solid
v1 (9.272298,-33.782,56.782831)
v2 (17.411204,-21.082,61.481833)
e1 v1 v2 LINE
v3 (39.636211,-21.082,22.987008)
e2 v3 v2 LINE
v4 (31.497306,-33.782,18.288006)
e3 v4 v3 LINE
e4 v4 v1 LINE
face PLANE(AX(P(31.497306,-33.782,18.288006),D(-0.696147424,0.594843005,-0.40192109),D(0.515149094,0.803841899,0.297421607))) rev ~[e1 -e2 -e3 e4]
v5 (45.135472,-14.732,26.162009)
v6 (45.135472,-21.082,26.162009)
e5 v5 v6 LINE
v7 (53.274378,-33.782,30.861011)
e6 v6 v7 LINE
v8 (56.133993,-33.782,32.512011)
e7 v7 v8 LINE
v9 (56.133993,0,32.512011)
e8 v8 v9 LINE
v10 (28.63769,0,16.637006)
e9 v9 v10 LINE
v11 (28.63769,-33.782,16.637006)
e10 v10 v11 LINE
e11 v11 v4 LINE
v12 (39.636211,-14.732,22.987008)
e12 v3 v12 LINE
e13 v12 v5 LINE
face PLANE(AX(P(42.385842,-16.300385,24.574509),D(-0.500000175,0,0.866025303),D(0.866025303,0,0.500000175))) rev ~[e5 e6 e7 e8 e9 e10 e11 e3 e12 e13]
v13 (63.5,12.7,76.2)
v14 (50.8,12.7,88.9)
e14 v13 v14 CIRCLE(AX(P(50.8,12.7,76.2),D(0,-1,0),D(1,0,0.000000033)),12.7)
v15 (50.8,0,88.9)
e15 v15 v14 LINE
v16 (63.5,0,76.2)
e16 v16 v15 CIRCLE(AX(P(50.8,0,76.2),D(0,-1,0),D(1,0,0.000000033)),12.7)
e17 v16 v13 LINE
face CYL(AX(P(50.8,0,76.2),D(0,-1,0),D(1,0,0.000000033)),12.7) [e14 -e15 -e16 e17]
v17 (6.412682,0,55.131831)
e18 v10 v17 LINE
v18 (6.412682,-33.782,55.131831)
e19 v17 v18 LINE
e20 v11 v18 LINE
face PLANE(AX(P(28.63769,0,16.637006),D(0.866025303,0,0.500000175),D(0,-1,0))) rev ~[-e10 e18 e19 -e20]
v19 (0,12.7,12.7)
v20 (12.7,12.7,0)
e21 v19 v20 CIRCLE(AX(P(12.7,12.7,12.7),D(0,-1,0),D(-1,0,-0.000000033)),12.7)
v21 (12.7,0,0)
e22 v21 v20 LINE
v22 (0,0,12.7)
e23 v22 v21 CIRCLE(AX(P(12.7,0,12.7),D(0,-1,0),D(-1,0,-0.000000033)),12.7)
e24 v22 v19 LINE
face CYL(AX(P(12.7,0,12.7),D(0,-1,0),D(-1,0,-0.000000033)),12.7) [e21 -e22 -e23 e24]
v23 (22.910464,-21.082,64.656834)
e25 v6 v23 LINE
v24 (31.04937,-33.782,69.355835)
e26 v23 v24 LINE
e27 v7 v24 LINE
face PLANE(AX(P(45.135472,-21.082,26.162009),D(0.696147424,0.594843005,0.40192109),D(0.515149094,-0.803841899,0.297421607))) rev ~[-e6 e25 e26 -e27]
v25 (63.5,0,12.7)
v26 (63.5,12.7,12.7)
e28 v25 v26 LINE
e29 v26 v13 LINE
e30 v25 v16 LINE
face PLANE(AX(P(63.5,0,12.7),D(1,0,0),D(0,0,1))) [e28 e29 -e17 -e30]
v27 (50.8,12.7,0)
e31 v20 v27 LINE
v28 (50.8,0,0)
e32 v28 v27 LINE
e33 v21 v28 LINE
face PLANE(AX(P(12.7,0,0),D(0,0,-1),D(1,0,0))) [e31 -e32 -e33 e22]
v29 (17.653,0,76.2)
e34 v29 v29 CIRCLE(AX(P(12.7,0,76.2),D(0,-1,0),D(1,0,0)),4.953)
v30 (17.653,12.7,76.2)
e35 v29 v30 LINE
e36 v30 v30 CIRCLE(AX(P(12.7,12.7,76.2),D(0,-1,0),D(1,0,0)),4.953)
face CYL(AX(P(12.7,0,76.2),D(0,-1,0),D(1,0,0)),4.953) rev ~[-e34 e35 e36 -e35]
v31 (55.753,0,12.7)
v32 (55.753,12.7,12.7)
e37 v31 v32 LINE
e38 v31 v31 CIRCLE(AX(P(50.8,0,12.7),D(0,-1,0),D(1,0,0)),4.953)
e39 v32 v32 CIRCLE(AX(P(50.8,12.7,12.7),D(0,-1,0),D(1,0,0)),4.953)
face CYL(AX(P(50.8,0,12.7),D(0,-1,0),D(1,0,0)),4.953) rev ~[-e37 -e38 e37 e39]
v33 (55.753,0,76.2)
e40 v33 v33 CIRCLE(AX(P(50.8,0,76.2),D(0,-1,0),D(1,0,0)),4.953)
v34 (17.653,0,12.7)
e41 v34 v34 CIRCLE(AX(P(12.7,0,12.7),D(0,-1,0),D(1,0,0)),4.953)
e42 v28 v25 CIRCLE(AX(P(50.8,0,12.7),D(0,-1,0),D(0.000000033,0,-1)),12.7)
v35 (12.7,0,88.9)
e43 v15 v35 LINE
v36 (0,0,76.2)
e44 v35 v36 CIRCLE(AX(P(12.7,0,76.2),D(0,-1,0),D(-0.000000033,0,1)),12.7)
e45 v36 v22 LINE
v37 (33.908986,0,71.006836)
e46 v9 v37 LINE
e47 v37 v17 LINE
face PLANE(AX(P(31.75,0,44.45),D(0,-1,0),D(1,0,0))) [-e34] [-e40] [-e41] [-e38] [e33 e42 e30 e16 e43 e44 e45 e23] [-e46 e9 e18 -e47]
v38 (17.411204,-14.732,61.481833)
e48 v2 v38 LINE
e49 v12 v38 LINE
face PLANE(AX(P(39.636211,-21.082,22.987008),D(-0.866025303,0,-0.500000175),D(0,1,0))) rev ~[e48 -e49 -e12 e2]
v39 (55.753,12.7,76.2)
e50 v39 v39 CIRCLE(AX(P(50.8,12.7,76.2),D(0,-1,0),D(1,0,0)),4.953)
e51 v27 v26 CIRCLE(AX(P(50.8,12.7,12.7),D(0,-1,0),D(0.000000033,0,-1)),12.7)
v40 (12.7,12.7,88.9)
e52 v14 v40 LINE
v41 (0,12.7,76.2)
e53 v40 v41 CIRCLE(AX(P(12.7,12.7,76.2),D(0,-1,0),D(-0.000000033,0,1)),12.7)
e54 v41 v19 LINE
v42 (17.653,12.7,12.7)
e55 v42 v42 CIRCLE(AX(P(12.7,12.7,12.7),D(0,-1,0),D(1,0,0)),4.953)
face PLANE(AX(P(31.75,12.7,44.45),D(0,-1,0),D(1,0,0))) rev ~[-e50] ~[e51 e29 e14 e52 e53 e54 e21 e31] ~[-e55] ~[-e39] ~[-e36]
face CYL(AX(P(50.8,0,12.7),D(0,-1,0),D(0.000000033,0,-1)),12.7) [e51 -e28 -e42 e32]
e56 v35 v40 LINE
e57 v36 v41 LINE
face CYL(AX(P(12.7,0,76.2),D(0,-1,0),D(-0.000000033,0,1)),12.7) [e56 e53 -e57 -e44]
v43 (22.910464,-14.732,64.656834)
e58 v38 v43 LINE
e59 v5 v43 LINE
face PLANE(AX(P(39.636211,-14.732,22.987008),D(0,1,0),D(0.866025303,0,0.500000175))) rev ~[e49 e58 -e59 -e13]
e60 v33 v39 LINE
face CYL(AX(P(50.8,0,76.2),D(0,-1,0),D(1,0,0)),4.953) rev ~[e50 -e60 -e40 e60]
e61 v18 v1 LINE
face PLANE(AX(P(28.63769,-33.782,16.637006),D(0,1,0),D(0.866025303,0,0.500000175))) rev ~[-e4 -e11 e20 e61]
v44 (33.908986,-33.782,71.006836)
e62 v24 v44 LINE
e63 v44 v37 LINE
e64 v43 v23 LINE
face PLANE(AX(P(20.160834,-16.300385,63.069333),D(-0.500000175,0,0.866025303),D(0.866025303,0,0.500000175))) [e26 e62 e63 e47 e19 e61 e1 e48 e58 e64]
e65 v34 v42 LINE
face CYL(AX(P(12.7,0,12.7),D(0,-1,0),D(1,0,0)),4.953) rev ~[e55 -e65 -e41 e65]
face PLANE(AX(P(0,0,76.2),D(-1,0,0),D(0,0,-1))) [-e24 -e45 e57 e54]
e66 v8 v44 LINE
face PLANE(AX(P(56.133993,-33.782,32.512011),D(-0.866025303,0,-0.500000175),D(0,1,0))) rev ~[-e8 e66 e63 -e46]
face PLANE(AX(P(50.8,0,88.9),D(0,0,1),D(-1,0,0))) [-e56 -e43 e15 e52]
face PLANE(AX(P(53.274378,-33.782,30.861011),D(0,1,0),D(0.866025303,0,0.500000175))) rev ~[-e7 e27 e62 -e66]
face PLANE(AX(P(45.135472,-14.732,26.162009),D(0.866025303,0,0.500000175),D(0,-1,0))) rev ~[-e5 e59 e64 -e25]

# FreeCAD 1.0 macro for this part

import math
import FreeCAD as App
import Part
import Sketcher
Q = App.Units.Quantity


def add_polygon(sketch, points):
    """Adds a closed chain of lines whose ends are joined by coincident constraints."""
    first, n = sketch.GeometryCount, len(points)
    for a, b in zip(points, points[1:] + points[:1]):
        sketch.addGeometry(Part.LineSegment(App.Vector(*a, 0), App.Vector(*b, 0)), False)
    for i in range(n):
        sketch.addConstraint(Sketcher.Constraint("Coincident", first + i, 2, first + (i + 1) % n, 1))

doc = App.newDocument("Part")
body = doc.addObject("PartDesign::Body", "Body")

sketch1 = body.newObject("Sketcher::SketchObject", "Sketch")
sketch1.AttachmentSupport = (doc.getObject("XZ_Plane"), [""])
sketch1.MapMode = "FlatFace"
sketch1.addGeometry([
    Part.ArcOfCircle(Part.Circle(App.Vector(12.7, 12.7, 0), App.Vector(0, 0, 1), 12.7), math.radians(-180), math.radians(-90)),
    Part.LineSegment(App.Vector(12.7, 0, 0), App.Vector(50.8, 0, 0)),
    Part.ArcOfCircle(Part.Circle(App.Vector(50.8, 12.7, 0), App.Vector(0, 0, 1), 12.7), math.radians(-90), math.radians(0)),
    Part.LineSegment(App.Vector(63.5, 12.7, 0), App.Vector(63.5, 76.2, 0)),
    Part.ArcOfCircle(Part.Circle(App.Vector(50.8, 76.2, 0), App.Vector(0, 0, 1), 12.7), math.radians(0), math.radians(90)),
    Part.LineSegment(App.Vector(50.8, 88.9, 0), App.Vector(12.7, 88.9, 0)),
    Part.ArcOfCircle(Part.Circle(App.Vector(12.7, 76.2, 0), App.Vector(0, 0, 1), 12.7), math.radians(90), math.radians(180)),
    Part.LineSegment(App.Vector(0, 76.2, 0), App.Vector(0, 12.7, 0)),
    Part.Circle(App.Vector(12.7, 12.7, 0), App.Vector(0, 0, 1), 5),
    Part.Circle(App.Vector(50.8, 12.7, 0), App.Vector(0, 0, 1), 5),
    Part.Circle(App.Vector(12.7, 76.2, 0), App.Vector(0, 0, 1), 5),
    Part.Circle(App.Vector(50.8, 76.2, 0), App.Vector(0, 0, 1), 5),
], False)
sketch1.addConstraint([
    Sketcher.Constraint("Tangent", 0, 2, 1, 1),
    Sketcher.Constraint("Tangent", 1, 2, 2, 1),
    Sketcher.Constraint("Tangent", 2, 2, 3, 1),
    Sketcher.Constraint("Tangent", 3, 2, 4, 1),
    Sketcher.Constraint("Tangent", 4, 2, 5, 1),
    Sketcher.Constraint("Tangent", 5, 2, 6, 1),
    Sketcher.Constraint("Tangent", 6, 2, 7, 1),
    Sketcher.Constraint("Tangent", 7, 2, 0, 1),
    Sketcher.Constraint("Horizontal", 1),
    Sketcher.Constraint("Vertical", 3),
    Sketcher.Constraint("Horizontal", 5),
    Sketcher.Constraint("Vertical", 7),
    Sketcher.Constraint("Coincident", 8, 3, 0, 3),
    Sketcher.Constraint("Coincident", 9, 3, 2, 3),
    Sketcher.Constraint("Coincident", 10, 3, 6, 3),
    Sketcher.Constraint("Coincident", 11, 3, 4, 3),
    Sketcher.Constraint("Equal", 0, 2),
    Sketcher.Constraint("Equal", 2, 4),
    Sketcher.Constraint("Equal", 4, 6),
    Sketcher.Constraint("Equal", 8, 9),
    Sketcher.Constraint("Equal", 9, 10),
    Sketcher.Constraint("Equal", 10, 11),
    Sketcher.Constraint("PointOnObject", 0, 2, -1),
    Sketcher.Constraint("PointOnObject", 6, 2, -2),
    Sketcher.Constraint("Radius", 0, Q("0.5 in")),
    Sketcher.Constraint("Diameter", 8, Q("0.39 in")),
    Sketcher.Constraint("DistanceX", 1, 1, 1, 2, Q("1.5 in")),
    Sketcher.Constraint("DistanceY", 3, 1, 3, 2, Q("2.5 in")),
])
pad1 = body.newObject("PartDesign::Pad", "Pad")
pad1.Profile = sketch1
pad1.Length = Q("0.5 in")
pad1.Reversed = True

sketch2 = body.newObject("Sketcher::SketchObject", "Sketch001")
sketch2.Placement = App.Placement(App.Vector(-0.044609, 0, 0.077265), App.Rotation(App.Vector(0.866025303, 0, 0.500000175), App.Vector(0, 1, 0), App.Vector(-0.500000175, 0, 0.866025303), "ZXY"))
add_polygon(sketch2, [(64.9, 0), (33.1, 0), (33.1, -33.8), (36.4, -33.8), (45.8, -21.1), (45.8, -14.7), (52.2, -14.7), (52.2, -21.1), (61.6, -33.8), (64.9, -33.8)])
sketch2.addConstraint([
    Sketcher.Constraint("Horizontal", 0),
    Sketcher.Constraint("Vertical", 1),
    Sketcher.Constraint("Horizontal", 2),
    Sketcher.Constraint("Vertical", 4),
    Sketcher.Constraint("Horizontal", 5),
    Sketcher.Constraint("Vertical", 6),
    Sketcher.Constraint("Horizontal", 8),
    Sketcher.Constraint("Vertical", 9),
    Sketcher.Constraint("PointOnObject", 0, 2, -1),
    Sketcher.Constraint("Horizontal", 3, 2, 6, 2),
    Sketcher.Constraint("Horizontal", 2, 2, 7, 2),
    Sketcher.Constraint("Equal", 2, 8),
    Sketcher.Constraint("Equal", 5, 4),
    Sketcher.Constraint("Equal", 3, 7),
    Sketcher.Constraint("DistanceX", 0, 2, 0, 1, Q("1.25 in")),
    Sketcher.Constraint("DistanceX", 2, 1, 2, 2, Q("0.13 in")),
    Sketcher.Constraint("DistanceX", 5, 1, 5, 2, Q("0.25 in")),
    Sketcher.Constraint("DistanceY", 1, 2, 1, 1, Q("1.33 in")),
    Sketcher.Constraint("DistanceY", 2, 2, 3, 2, Q("0.5 in")),
    Sketcher.Constraint("DistanceX", -1, 1, 0, 2, 33.11947),
])
pad2 = body.newObject("PartDesign::Pad", "Pad001")
pad2.Profile = sketch2
pad2.Length = Q("1.75 in")

doc.recompute()
